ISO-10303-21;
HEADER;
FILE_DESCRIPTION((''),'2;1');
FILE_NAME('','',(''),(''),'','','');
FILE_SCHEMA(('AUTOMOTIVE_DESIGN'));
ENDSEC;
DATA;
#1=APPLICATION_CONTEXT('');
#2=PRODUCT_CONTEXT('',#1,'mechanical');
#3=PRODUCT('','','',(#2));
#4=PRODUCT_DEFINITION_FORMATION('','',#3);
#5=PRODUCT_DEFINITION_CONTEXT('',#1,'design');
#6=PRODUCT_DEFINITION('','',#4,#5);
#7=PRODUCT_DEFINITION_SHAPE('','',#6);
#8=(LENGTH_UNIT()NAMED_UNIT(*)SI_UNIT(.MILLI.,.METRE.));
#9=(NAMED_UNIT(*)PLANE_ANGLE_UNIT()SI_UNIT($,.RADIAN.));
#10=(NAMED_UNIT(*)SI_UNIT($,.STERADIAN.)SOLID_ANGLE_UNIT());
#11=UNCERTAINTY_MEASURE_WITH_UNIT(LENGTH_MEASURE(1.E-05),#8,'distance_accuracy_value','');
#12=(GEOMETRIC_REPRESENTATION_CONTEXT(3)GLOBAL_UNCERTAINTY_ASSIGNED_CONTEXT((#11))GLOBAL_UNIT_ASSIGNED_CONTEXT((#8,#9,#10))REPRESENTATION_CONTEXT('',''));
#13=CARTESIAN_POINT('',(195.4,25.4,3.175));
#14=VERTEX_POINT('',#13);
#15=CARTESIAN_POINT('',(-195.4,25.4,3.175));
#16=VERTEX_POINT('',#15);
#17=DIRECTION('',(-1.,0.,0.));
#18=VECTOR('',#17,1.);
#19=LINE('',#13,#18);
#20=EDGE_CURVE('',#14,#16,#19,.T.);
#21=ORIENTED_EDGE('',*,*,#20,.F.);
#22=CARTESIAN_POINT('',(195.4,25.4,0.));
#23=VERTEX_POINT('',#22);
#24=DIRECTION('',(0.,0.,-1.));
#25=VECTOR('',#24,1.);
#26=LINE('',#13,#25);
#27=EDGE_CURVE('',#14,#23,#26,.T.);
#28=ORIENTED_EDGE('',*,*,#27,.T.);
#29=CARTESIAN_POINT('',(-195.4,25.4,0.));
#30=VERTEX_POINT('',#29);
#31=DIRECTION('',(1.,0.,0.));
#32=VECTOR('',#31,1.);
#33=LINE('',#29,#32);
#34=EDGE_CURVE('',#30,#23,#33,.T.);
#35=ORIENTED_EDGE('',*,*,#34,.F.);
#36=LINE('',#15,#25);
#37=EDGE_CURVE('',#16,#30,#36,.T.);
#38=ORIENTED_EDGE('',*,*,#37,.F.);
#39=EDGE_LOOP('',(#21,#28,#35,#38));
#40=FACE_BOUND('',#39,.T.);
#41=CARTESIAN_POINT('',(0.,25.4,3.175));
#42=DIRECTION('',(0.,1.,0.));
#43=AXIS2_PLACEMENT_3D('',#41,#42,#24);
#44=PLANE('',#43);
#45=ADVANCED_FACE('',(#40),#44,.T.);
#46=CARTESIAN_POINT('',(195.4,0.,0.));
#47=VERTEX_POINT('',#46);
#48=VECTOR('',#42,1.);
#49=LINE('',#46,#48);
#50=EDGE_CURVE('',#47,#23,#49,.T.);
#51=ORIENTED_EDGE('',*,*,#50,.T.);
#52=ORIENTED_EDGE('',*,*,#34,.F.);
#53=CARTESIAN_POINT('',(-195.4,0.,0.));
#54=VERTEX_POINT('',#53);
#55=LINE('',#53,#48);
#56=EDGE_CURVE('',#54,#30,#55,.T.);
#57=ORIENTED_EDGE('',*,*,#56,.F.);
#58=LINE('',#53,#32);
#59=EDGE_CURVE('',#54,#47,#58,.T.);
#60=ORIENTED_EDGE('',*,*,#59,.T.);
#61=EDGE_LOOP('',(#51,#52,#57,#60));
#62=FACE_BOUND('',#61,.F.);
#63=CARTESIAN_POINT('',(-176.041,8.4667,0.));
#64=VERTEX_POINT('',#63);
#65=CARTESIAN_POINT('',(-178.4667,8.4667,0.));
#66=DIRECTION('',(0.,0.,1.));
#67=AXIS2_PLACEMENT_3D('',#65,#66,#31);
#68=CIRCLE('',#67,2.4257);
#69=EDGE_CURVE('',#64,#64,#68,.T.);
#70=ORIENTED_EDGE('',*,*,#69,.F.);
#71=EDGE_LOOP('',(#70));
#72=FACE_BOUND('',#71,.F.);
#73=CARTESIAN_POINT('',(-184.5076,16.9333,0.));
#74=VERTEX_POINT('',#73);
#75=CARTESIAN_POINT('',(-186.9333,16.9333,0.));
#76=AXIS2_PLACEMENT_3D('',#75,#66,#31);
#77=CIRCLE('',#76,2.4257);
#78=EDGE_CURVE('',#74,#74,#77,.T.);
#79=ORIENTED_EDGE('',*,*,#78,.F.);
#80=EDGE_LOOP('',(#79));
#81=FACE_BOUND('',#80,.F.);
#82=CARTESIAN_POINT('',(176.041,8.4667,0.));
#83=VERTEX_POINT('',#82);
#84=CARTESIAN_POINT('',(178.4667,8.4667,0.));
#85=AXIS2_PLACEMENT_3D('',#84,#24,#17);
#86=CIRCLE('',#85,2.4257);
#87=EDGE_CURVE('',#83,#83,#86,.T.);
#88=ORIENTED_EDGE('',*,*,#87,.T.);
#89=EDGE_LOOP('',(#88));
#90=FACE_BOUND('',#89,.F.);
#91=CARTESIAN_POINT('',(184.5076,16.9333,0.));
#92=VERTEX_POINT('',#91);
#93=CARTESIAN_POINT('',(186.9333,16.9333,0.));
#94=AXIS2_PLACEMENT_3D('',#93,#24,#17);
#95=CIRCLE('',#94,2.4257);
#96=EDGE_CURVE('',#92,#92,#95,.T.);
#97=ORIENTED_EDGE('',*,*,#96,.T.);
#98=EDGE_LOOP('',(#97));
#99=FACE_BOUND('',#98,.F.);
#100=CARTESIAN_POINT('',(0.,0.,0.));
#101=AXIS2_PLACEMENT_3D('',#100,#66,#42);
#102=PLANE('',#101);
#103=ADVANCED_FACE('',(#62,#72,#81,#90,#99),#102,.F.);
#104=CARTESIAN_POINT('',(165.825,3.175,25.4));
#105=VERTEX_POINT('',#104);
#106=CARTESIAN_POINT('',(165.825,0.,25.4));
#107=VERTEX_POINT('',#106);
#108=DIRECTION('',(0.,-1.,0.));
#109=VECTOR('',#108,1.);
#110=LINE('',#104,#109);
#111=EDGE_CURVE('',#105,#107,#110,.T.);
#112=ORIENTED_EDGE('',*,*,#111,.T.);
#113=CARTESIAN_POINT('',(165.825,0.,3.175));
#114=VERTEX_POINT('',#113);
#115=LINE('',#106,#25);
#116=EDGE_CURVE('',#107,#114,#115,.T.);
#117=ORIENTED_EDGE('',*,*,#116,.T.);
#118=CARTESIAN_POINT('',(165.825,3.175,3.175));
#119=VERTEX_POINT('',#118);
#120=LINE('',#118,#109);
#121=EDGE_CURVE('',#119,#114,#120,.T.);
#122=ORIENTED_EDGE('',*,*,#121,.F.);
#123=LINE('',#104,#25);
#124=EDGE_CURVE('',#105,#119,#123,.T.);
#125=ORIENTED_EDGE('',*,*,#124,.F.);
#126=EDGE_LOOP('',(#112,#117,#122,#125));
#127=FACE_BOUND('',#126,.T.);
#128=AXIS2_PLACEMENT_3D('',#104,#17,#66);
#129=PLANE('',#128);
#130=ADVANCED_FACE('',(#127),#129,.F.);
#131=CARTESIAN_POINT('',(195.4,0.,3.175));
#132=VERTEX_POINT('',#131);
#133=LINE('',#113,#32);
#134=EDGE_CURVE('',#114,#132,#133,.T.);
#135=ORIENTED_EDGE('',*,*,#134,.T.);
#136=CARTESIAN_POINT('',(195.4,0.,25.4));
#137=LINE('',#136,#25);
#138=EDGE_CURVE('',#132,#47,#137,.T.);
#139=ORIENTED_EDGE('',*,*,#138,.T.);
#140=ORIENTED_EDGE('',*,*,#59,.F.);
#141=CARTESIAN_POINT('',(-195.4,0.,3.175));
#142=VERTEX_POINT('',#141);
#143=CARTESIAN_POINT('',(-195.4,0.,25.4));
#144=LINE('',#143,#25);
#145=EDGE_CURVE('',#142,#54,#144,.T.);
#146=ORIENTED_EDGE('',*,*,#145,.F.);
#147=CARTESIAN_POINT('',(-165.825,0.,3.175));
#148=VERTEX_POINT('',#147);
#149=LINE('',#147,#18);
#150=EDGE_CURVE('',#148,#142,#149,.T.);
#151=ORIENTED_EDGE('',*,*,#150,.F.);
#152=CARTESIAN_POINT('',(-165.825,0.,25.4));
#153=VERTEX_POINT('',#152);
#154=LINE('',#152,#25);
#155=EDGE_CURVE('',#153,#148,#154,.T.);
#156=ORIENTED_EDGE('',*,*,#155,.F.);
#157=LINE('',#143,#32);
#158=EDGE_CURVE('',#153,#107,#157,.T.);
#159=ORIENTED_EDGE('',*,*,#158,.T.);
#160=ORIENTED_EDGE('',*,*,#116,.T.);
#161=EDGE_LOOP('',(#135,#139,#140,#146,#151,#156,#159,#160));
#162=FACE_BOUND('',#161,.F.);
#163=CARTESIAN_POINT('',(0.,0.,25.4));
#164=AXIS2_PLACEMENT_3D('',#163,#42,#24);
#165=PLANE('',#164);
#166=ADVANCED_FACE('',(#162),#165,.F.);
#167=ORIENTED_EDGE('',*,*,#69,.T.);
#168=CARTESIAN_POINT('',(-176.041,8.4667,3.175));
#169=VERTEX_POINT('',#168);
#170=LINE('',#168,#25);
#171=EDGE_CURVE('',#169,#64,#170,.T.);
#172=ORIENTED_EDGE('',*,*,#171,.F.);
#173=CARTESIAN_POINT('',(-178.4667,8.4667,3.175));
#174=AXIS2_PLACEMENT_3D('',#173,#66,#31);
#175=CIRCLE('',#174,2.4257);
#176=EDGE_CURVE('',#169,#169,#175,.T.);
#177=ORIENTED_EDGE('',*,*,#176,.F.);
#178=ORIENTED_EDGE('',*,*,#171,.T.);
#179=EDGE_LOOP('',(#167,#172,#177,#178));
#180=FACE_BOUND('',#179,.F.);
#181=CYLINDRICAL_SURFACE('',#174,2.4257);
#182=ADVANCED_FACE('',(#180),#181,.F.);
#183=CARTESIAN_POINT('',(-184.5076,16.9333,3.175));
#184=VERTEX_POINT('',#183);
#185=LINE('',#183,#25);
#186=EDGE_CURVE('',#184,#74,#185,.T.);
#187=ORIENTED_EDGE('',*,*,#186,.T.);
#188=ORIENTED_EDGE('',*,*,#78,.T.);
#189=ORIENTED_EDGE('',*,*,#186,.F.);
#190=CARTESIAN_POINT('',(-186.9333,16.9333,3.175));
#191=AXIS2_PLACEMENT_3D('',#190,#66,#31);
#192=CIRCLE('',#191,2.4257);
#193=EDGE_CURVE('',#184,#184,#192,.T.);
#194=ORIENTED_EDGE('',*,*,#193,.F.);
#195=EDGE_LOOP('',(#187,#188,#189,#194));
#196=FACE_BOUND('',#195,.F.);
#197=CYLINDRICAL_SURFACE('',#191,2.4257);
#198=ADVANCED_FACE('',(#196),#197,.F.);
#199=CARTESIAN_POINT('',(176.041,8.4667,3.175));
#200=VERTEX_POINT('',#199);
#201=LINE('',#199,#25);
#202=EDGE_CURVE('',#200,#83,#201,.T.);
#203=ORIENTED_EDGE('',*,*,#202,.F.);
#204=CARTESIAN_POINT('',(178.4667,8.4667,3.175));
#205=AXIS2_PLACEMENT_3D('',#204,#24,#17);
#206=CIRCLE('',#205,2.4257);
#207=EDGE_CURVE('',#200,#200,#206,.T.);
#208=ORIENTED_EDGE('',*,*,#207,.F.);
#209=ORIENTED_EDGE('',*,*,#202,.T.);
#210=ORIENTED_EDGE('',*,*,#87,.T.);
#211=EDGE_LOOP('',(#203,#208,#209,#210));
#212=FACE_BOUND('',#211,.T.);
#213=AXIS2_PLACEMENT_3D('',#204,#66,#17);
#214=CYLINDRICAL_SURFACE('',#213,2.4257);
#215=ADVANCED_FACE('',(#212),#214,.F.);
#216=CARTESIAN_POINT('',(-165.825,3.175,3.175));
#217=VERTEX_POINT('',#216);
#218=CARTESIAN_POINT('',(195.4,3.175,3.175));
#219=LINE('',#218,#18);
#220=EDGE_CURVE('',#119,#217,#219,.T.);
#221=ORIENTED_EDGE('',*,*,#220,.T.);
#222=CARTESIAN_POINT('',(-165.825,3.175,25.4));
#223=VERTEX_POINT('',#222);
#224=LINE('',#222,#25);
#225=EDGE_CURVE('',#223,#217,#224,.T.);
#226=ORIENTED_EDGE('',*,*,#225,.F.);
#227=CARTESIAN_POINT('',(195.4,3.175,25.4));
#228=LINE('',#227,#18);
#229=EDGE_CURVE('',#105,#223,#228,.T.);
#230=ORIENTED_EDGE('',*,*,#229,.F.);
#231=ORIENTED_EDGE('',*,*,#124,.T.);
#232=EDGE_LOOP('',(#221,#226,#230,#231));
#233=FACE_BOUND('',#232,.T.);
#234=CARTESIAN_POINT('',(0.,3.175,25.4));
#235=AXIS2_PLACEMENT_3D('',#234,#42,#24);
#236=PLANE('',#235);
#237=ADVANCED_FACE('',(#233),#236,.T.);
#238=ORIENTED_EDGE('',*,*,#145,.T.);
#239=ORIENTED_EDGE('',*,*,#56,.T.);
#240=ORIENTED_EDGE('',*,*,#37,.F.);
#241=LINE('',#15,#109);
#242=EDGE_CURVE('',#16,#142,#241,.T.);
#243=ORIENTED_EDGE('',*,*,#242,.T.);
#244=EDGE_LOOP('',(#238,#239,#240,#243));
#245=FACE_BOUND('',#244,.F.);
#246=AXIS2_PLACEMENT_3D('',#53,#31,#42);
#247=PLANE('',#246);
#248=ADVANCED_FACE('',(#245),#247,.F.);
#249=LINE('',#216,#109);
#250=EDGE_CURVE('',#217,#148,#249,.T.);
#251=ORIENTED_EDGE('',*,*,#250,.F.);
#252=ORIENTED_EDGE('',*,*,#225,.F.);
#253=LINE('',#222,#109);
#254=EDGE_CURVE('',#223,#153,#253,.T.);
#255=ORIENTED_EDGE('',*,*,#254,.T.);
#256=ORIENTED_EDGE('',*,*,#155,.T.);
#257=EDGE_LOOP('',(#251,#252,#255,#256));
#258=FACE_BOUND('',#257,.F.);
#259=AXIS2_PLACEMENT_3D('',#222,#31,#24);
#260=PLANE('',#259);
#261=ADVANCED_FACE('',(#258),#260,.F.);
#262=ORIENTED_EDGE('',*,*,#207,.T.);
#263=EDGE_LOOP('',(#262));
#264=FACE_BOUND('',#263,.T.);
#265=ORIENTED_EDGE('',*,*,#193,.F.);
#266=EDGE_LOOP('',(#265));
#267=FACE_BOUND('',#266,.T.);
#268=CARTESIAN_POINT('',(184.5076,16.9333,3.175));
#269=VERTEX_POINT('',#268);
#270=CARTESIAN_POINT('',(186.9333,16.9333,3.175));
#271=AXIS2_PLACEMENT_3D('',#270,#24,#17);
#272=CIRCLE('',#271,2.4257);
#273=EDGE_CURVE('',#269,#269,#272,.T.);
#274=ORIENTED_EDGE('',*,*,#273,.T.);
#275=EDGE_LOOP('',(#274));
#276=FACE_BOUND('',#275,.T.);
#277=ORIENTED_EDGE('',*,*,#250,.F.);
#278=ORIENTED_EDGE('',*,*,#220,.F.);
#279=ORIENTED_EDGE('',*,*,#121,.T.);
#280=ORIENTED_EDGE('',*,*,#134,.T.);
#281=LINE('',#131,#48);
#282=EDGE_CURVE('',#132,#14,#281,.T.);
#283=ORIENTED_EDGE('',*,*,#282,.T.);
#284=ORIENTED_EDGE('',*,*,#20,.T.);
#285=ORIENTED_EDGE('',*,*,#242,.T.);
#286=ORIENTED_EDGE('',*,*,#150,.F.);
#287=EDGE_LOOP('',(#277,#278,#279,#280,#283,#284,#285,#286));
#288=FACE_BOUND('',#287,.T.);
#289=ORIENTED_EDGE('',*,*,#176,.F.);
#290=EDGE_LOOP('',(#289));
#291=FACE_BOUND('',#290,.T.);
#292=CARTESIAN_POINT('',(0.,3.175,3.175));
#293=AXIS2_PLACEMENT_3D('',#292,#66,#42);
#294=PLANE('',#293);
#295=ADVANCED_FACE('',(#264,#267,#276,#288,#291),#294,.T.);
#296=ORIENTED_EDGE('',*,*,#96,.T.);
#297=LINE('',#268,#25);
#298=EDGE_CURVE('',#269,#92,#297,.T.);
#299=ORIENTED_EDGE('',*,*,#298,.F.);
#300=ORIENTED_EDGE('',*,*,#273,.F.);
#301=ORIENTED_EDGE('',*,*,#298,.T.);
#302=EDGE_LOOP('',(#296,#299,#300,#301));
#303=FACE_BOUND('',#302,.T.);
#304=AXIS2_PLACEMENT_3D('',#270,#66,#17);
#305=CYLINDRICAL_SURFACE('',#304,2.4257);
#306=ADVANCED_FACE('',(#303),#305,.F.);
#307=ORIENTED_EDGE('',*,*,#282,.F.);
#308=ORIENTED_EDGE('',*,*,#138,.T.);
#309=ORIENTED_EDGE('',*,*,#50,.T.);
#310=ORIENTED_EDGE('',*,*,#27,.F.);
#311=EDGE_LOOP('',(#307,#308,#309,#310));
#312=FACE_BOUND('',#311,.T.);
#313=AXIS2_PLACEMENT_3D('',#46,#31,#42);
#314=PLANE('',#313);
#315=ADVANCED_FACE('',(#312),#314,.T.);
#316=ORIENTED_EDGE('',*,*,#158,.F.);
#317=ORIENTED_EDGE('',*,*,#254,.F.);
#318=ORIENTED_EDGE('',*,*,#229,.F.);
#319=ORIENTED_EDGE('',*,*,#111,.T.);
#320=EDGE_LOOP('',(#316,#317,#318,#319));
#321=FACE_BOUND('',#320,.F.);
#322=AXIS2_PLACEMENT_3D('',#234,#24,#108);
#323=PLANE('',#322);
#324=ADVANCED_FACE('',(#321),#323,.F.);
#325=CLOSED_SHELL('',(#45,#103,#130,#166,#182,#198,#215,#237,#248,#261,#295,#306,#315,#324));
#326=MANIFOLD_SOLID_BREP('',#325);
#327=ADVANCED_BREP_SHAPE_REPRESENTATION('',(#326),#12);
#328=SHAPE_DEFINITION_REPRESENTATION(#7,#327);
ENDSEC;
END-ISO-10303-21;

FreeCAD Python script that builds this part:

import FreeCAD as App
import Part
import Sketcher
Q = App.Units.Quantity

doc = App.newDocument("Part")
body = doc.addObject("PartDesign::Body", "Body")

sketch1 = doc.addObject("Sketcher::SketchObject", "Sketch")
body.addObject(sketch1)
sketch1.AttachmentSupport = (doc.YZ_Plane, [""])
sketch1.MapMode = "FlatFace"
sketch1.addGeometry([
    Part.LineSegment(App.Vector(3.175, 25.4, 0), App.Vector(0, 25.4, 0)),
    Part.LineSegment(App.Vector(0, 25.4, 0), App.Vector(0, 0, 0)),
    Part.LineSegment(App.Vector(0, 0, 0), App.Vector(25.4, 0, 0)),
    Part.LineSegment(App.Vector(25.4, 0, 0), App.Vector(25.4, 3.175, 0)),
    Part.LineSegment(App.Vector(25.4, 3.175, 0), App.Vector(3.175, 3.175, 0)),
    Part.LineSegment(App.Vector(3.175, 3.175, 0), App.Vector(3.175, 25.4, 0)),
], False)
sketch1.addConstraint([
    Sketcher.Constraint("Coincident", 0, 2, 1, 1),
    Sketcher.Constraint("Coincident", 1, 2, 2, 1),
    Sketcher.Constraint("Coincident", 2, 2, 3, 1),
    Sketcher.Constraint("Coincident", 3, 2, 4, 1),
    Sketcher.Constraint("Coincident", 4, 2, 5, 1),
    Sketcher.Constraint("Coincident", 5, 2, 0, 1),
    Sketcher.Constraint("Horizontal", 0),
    Sketcher.Constraint("Vertical", 1),
    Sketcher.Constraint("Horizontal", 2),
    Sketcher.Constraint("Vertical", 3),
    Sketcher.Constraint("Horizontal", 4),
    Sketcher.Constraint("Vertical", 5),
    Sketcher.Constraint("Coincident", 1, 2, -1, 1),
    Sketcher.Constraint("Equal", 2, 1),
    Sketcher.Constraint("Equal", 0, 3),
    Sketcher.Constraint("DistanceX", 2, 1, 2, 2, Q("1 in")),
    Sketcher.Constraint("DistanceX", 0, 2, 0, 1, Q("0.125 in")),
])
pad1 = doc.addObject("PartDesign::Pad", "Pad")
body.addObject(pad1)
pad1.Profile = sketch1
pad1.Length = 390.8
pad1.Midplane = True

sketch2 = doc.addObject("Sketcher::SketchObject", "Sketch001")
body.addObject(sketch2)
sketch2.AttachmentSupport = (doc.XZ_Plane, [""])
sketch2.MapMode = "FlatFace"
sketch2.AttachmentOffset = App.Placement(App.Vector(0, 0, -0.125 * 25.4), App.Rotation())
sketch2.addGeometry([
    Part.LineSegment(App.Vector(-195.4, 3.175, 0), App.Vector(-195.4, 25.4, 0)),
    Part.LineSegment(App.Vector(-195.4, 25.4, 0), App.Vector(-165.825, 25.4, 0)),
    Part.LineSegment(App.Vector(-165.825, 25.4, 0), App.Vector(-165.825, 3.175, 0)),
    Part.LineSegment(App.Vector(-165.825, 3.175, 0), App.Vector(-195.4, 3.175, 0)),
], False)
sketch2.addConstraint([
    Sketcher.Constraint("Coincident", 0, 2, 1, 1),
    Sketcher.Constraint("Coincident", 1, 2, 2, 1),
    Sketcher.Constraint("Coincident", 2, 2, 3, 1),
    Sketcher.Constraint("Coincident", 3, 2, 0, 1),
    Sketcher.Constraint("Vertical", 0),
    Sketcher.Constraint("Horizontal", 1),
    Sketcher.Constraint("Vertical", 2),
    Sketcher.Constraint("Horizontal", 3),
    Sketcher.Constraint("DistanceY", -1, 1, 0, 2, Q("1 in")),
    Sketcher.Constraint("DistanceX", 1, 1, 1, 2, 29.575),
    Sketcher.Constraint("DistanceY", 0, 1, 0, 2, Q("0.875 in")),
    Sketcher.Constraint("DistanceX", 0, 2, -1, 1, 195.4),
])
pocket1 = doc.addObject("PartDesign::Pocket", "Pocket")
body.addObject(pocket1)
pocket1.Profile = sketch2
pocket1.Length = Q("0.125 in")
pocket1.Reversed = True

sketch3 = doc.addObject("Sketcher::SketchObject", "Sketch002")
body.addObject(sketch3)
sketch3.AttachmentSupport = (doc.XY_Plane, [""])
sketch3.MapMode = "FlatFace"
sketch3.AttachmentOffset = App.Placement(App.Vector(0, 0, 0.125 * 25.4), App.Rotation())
sketch3.addGeometry([
    Part.Circle(App.Vector(-186.9333, 16.9333, 0), App.Vector(0, 0, 1), 2.4257),
    Part.Circle(App.Vector(-178.4667, 8.4667, 0), App.Vector(0, 0, 1), 2.4257),
], False)
sketch3.addConstraint([
    Sketcher.Constraint("Equal", 0, 1),
    Sketcher.Constraint("Diameter", 0, Q("0.191 in")),
    Sketcher.Constraint("DistanceY", -1, 1, 1, 3, 8.4667),
    Sketcher.Constraint("DistanceX", 0, 3, 1, 3, 8.4666),
    Sketcher.Constraint("DistanceY", 1, 3, 0, 3, 8.4666),
    Sketcher.Constraint("DistanceX", 0, 3, -1, 1, 186.9333),
])
pocket2 = doc.addObject("PartDesign::Pocket", "Pocket001")
body.addObject(pocket2)
pocket2.Profile = sketch3
pocket2.Length = Q("0.125 in")
doc.recompute()

mirrored = doc.addObject("PartDesign::Mirrored", "Mirrored")
body.addObject(mirrored)
mirrored.Originals = [pocket1, pocket2]
mirrored.MirrorPlane = (doc.YZ_Plane, [""])
body.Tip = mirrored

doc.recompute()
